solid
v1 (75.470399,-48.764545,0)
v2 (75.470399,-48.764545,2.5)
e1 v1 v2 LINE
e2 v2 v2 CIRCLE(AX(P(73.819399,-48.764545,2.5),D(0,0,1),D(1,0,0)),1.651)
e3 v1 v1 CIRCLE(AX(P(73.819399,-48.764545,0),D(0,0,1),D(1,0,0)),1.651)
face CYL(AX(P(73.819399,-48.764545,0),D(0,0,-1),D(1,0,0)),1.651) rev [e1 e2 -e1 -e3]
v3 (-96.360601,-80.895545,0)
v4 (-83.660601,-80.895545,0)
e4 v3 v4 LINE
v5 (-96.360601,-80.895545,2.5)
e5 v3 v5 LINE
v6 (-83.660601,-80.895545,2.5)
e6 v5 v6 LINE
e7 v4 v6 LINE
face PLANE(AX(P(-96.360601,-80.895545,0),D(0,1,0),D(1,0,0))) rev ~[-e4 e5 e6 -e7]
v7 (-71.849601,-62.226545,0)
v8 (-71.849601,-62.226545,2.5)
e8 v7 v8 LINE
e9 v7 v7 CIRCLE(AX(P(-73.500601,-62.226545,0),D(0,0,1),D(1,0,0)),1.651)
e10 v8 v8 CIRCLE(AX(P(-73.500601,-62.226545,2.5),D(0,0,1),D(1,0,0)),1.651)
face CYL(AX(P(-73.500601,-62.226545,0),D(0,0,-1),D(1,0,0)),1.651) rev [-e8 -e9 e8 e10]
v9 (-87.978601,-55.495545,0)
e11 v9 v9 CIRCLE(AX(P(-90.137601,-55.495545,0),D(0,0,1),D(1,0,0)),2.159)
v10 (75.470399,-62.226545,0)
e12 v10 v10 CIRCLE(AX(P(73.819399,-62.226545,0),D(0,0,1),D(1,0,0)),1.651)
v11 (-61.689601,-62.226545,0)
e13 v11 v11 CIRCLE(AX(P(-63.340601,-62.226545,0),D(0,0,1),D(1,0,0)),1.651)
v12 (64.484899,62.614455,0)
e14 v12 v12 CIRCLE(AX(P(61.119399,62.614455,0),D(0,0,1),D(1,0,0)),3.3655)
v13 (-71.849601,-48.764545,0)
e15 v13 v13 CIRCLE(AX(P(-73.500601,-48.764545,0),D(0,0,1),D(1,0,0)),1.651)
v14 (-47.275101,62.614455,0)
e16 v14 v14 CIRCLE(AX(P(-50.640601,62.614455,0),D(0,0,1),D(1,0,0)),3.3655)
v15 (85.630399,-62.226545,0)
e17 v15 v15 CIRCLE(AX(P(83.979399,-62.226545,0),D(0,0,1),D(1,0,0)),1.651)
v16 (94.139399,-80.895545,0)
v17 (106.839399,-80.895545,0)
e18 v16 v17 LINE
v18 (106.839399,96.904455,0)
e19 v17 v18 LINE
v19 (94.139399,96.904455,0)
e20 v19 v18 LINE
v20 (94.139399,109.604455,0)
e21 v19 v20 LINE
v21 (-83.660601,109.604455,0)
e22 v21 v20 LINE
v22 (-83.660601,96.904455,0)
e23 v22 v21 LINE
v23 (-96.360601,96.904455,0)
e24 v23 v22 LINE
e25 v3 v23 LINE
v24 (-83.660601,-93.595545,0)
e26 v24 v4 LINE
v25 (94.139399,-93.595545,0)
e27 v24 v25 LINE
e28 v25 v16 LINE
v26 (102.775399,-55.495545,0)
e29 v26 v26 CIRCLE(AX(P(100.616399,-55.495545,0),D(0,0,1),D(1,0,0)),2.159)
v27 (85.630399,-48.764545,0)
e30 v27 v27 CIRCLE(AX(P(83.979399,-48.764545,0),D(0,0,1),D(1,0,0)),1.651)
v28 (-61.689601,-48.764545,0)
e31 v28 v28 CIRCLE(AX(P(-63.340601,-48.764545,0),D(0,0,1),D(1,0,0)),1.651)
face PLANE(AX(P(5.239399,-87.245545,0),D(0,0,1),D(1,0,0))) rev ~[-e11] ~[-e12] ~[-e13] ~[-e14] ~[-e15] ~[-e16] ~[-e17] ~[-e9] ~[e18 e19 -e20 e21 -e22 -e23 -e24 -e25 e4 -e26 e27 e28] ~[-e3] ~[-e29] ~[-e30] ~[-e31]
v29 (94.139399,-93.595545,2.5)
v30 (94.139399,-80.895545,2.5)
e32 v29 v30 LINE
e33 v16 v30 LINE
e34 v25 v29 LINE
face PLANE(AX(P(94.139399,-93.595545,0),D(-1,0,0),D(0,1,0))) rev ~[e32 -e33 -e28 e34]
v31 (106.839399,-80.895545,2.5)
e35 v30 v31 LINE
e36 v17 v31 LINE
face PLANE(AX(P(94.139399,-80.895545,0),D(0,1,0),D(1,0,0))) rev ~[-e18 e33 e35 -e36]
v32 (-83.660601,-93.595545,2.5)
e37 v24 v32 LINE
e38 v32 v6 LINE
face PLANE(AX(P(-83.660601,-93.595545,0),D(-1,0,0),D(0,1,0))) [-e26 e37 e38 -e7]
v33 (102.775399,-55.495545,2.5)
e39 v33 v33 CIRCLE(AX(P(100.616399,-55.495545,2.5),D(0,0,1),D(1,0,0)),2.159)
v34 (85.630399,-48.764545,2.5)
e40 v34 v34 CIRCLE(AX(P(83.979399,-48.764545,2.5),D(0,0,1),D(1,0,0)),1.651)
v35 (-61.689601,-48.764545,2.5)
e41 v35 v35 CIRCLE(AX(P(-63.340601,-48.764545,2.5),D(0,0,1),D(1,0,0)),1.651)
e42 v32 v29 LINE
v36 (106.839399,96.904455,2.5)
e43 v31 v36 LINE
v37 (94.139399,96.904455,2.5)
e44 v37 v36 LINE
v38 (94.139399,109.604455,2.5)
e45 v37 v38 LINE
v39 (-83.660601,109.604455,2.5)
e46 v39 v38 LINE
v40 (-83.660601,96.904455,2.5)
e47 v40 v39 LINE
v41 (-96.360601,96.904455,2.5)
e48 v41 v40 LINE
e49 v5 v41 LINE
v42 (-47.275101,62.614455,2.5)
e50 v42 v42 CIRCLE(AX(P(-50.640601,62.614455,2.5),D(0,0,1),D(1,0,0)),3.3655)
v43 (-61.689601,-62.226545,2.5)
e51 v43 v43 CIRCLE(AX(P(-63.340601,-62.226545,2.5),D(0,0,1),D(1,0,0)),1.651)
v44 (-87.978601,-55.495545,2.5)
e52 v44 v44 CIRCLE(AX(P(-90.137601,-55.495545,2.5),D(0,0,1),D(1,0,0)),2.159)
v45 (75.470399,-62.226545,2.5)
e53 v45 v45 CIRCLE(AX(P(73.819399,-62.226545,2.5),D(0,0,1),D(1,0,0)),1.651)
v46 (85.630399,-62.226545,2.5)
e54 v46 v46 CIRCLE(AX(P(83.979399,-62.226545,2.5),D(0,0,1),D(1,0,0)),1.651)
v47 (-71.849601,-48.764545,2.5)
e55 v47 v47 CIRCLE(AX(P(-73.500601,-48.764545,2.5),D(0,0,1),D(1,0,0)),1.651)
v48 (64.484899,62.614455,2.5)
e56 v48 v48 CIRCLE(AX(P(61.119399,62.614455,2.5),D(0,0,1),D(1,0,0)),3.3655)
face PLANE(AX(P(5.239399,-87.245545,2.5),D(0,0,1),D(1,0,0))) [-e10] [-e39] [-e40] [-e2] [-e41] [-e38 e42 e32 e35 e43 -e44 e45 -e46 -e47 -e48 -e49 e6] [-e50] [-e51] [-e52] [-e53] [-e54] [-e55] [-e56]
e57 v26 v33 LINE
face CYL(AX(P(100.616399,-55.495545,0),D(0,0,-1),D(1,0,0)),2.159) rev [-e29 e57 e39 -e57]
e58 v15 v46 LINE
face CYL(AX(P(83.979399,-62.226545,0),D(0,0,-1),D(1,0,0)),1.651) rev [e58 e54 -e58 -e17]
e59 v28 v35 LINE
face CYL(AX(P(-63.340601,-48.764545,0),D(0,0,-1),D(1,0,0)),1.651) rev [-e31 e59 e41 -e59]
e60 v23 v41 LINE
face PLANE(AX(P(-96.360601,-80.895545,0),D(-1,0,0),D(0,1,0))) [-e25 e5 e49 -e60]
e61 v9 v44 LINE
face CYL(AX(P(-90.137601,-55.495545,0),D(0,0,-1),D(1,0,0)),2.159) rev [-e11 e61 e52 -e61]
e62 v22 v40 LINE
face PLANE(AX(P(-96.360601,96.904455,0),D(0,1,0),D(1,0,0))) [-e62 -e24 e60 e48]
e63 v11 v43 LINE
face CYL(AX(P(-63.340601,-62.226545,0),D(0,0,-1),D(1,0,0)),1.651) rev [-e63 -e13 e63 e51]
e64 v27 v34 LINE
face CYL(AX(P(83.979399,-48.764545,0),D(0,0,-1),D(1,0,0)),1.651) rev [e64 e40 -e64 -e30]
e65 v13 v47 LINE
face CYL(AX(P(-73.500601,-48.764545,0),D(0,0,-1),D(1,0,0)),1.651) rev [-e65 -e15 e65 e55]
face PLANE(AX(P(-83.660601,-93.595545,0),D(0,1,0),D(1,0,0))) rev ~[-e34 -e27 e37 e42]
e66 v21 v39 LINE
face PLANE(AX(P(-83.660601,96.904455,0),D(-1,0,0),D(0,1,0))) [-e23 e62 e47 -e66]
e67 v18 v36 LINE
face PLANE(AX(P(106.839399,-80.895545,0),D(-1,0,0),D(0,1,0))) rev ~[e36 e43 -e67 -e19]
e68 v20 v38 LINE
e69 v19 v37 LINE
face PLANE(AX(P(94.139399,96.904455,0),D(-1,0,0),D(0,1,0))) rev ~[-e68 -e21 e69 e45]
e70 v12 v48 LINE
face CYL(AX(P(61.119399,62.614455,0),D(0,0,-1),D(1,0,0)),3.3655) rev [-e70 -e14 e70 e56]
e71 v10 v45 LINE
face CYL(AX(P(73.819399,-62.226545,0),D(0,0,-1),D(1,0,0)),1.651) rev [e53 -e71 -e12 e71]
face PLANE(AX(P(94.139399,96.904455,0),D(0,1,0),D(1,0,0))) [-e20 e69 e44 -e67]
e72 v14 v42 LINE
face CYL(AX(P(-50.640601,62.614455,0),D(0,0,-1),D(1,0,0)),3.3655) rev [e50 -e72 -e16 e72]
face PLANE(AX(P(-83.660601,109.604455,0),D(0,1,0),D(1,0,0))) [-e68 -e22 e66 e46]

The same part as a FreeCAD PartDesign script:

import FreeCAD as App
import Part
import Sketcher

V = App.Vector
Q = App.Units.Quantity


def add_polygon(sketch, points):
    """Adds a closed chain of lines whose ends are joined by coincident constraints."""
    first, n = sketch.GeometryCount, len(points)
    for a, b in zip(points, points[1:] + points[:1]):
        sketch.addGeometry(Part.LineSegment(App.Vector(*a, 0), App.Vector(*b, 0)), False)
    for i in range(n):
        sketch.addConstraint(Sketcher.Constraint("Coincident", first + i, 2, first + (i + 1) % n, 1))

doc = App.newDocument("Part")
params = doc.addObject("Spreadsheet::Sheet", "Params")
for row, (alias, value) in enumerate([
    ("sketch1_diameter", "0.13 in"),
    ("sketch1_diameter2", "0.17 in"),
    ("sketch1_width", "7 in"),
    ("sketch1_diameter3", "0.265 in"),
    ("sketch1_width2", "0.5 in"),
    ("pad1_length", "2.5 mm"),
], start=1):
    params.set(f"A{row}", alias)
    params.set(f"B{row}", "=" + value)
    params.setAlias(f"B{row}", alias)

body = doc.addObject("PartDesign::Body", "Body")

sketch1 = body.newObject("Sketcher::SketchObject", "Sketch")
sketch1.AttachmentSupport = (doc.getObject("XY_Plane"), [""])
sketch1.MapMode = "FlatFace"
add_polygon(sketch1, [(-83.7, -80.9), (-83.7, -93.6), (94.1, -93.6), (94.1, -80.9), (106.8, -80.9), (106.8, 96.9), (94.1, 96.9), (94.1, 109.6), (-83.7, 109.6), (-83.7, 96.9), (-96.4, 96.9), (-96.4, -80.9)])
sketch1.addGeometry(Part.Circle(V(-73.5, -62.2, 0), V(0, 0, 1), 1.7), False)
sketch1.addGeometry(Part.Circle(V(-90.1, -55.5, 0), V(0, 0, 1), 2.2), False)
sketch1.addGeometry(Part.Circle(V(-73.5, -48.8, 0), V(0, 0, 1), 1.7), False)
sketch1.addGeometry(Part.Circle(V(-63.3, -62.2, 0), V(0, 0, 1), 1.7), False)
sketch1.addGeometry(Part.Circle(V(-63.3, -48.8, 0), V(0, 0, 1), 1.7), False)
sketch1.addGeometry(Part.Circle(V(73.8, -62.2, 0), V(0, 0, 1), 1.7), False)
sketch1.addGeometry(Part.Circle(V(73.8, -48.8, 0), V(0, 0, 1), 1.7), False)
sketch1.addGeometry(Part.Circle(V(84, -62.2, 0), V(0, 0, 1), 1.7), False)
sketch1.addGeometry(Part.Circle(V(84, -48.8, 0), V(0, 0, 1), 1.7), False)
sketch1.addGeometry(Part.Circle(V(100.6, -55.5, 0), V(0, 0, 1), 2.2), False)
sketch1.addGeometry(Part.Circle(V(-50.6, 62.6, 0), V(0, 0, 1), 3.4), False)
sketch1.addGeometry(Part.Circle(V(61.1, 62.6, 0), V(0, 0, 1), 3.4), False)
sketch1.addConstraint([
    Sketcher.Constraint("Vertical", 0),
    Sketcher.Constraint("Horizontal", 1),
    Sketcher.Constraint("Vertical", 2),
    Sketcher.Constraint("Horizontal", 3),
    Sketcher.Constraint("Vertical", 4),
    Sketcher.Constraint("Horizontal", 5),
    Sketcher.Constraint("Vertical", 6),
    Sketcher.Constraint("Horizontal", 7),
    Sketcher.Constraint("Vertical", 8),
    Sketcher.Constraint("Horizontal", 9),
    Sketcher.Constraint("Vertical", 10),
    Sketcher.Constraint("Horizontal", 11),
    Sketcher.Constraint("Equal", 12, 14),
    Sketcher.Constraint("Equal", 14, 15),
    Sketcher.Constraint("Equal", 15, 16),
    Sketcher.Constraint("Equal", 16, 17),
    Sketcher.Constraint("Equal", 17, 18),
    Sketcher.Constraint("Equal", 18, 19),
    Sketcher.Constraint("Equal", 19, 20),
    Sketcher.Constraint("Equal", 13, 21),
    Sketcher.Constraint("Equal", 22, 23),
    Sketcher.Constraint("Horizontal", 12, 3, 15, 3),
    Sketcher.Constraint("Horizontal", 14, 3, 16, 3),
    Sketcher.Constraint("Horizontal", 15, 3, 17, 3),
    Sketcher.Constraint("Horizontal", 16, 3, 18, 3),
    Sketcher.Constraint("Horizontal", 17, 3, 19, 3),
    Sketcher.Constraint("Horizontal", 18, 3, 20, 3),
    Sketcher.Constraint("Horizontal", 13, 3, 21, 3),
    Sketcher.Constraint("Horizontal", 22, 3, 23, 3),
    Sketcher.Constraint("Horizontal", 5, 2, 8, 2),
    Sketcher.Constraint("Horizontal", 3, 2, 10, 2),
    Sketcher.Constraint("Vertical", 12, 3, 14, 3),
    Sketcher.Constraint("Vertical", 15, 3, 16, 3),
    Sketcher.Constraint("Vertical", 17, 3, 18, 3),
    Sketcher.Constraint("Vertical", 19, 3, 20, 3),
    Sketcher.Constraint("Vertical", 2, 2, 5, 2),
    Sketcher.Constraint("Vertical", 0, 2, 7, 2),
    Sketcher.Constraint("Equal", 5, 9),
    Sketcher.Constraint("Equal", 11, 0),
    Sketcher.Constraint("Equal", 7, 4),
    Sketcher.Constraint("Equal", 2, 6),
    Sketcher.Constraint("Diameter", 12, Q("0.13 in")),
    Sketcher.Constraint("Diameter", 13, Q("0.17 in")),
    Sketcher.Constraint("DistanceX", 1, 1, 1, 2, Q("7 in")),
    Sketcher.Constraint("Diameter", 22, Q("0.265 in")),
    Sketcher.Constraint("DistanceX", 3, 1, 3, 2, Q("0.5 in")),
    Sketcher.Constraint("DistanceY", 2, 2, 21, 3, Q("1 in")),
    Sketcher.Constraint("DistanceX", 12, 3, 15, 3, Q("0.4 in")),
    Sketcher.Constraint("DistanceX", 15, 3, 17, 3, Q("5.4 in")),
    Sketcher.Constraint("DistanceX", 17, 3, 19, 3, Q("0.4 in")),
    Sketcher.Constraint("DistanceX", 16, 3, 22, 3, Q("0.5 in")),
    Sketcher.Constraint("DistanceX", 22, 3, 23, 3, Q("4.4 in")),
    Sketcher.Constraint("DistanceX", 0, 2, 12, 3, Q("0.4 in")),
    Sketcher.Constraint("DistanceY", 12, 3, 14, 3, Q("0.53 in")),
    Sketcher.Constraint("DistanceY", 13, 3, 22, 3, Q("4.65 in")),
    Sketcher.Constraint("DistanceX", 13, 3, 12, 3, Q("0.655 in")),
    Sketcher.Constraint("DistanceY", 12, 3, 13, 3, Q("0.265 in")),
    Sketcher.Constraint("DistanceX", 19, 3, 21, 3, Q("0.655 in")),
    Sketcher.Constraint("DistanceX", 12, 3, -1, 1, Q("73.500601 mm")),
    Sketcher.Constraint("DistanceY", 12, 3, -1, 1, Q("62.226545 mm")),
])
sketch1.setExpression("Constraints[53]", "Params.sketch1_diameter")
sketch1.setExpression("Constraints[54]", "Params.sketch1_diameter2")
sketch1.setExpression("Constraints[55]", "Params.sketch1_width")
sketch1.setExpression("Constraints[56]", "Params.sketch1_diameter3")
sketch1.setExpression("Constraints[57]", "Params.sketch1_width2")
pad1 = body.newObject("PartDesign::Pad", "Pad")
pad1.Profile = sketch1
pad1.setExpression("Length", "Params.pad1_length")

doc.recompute()
